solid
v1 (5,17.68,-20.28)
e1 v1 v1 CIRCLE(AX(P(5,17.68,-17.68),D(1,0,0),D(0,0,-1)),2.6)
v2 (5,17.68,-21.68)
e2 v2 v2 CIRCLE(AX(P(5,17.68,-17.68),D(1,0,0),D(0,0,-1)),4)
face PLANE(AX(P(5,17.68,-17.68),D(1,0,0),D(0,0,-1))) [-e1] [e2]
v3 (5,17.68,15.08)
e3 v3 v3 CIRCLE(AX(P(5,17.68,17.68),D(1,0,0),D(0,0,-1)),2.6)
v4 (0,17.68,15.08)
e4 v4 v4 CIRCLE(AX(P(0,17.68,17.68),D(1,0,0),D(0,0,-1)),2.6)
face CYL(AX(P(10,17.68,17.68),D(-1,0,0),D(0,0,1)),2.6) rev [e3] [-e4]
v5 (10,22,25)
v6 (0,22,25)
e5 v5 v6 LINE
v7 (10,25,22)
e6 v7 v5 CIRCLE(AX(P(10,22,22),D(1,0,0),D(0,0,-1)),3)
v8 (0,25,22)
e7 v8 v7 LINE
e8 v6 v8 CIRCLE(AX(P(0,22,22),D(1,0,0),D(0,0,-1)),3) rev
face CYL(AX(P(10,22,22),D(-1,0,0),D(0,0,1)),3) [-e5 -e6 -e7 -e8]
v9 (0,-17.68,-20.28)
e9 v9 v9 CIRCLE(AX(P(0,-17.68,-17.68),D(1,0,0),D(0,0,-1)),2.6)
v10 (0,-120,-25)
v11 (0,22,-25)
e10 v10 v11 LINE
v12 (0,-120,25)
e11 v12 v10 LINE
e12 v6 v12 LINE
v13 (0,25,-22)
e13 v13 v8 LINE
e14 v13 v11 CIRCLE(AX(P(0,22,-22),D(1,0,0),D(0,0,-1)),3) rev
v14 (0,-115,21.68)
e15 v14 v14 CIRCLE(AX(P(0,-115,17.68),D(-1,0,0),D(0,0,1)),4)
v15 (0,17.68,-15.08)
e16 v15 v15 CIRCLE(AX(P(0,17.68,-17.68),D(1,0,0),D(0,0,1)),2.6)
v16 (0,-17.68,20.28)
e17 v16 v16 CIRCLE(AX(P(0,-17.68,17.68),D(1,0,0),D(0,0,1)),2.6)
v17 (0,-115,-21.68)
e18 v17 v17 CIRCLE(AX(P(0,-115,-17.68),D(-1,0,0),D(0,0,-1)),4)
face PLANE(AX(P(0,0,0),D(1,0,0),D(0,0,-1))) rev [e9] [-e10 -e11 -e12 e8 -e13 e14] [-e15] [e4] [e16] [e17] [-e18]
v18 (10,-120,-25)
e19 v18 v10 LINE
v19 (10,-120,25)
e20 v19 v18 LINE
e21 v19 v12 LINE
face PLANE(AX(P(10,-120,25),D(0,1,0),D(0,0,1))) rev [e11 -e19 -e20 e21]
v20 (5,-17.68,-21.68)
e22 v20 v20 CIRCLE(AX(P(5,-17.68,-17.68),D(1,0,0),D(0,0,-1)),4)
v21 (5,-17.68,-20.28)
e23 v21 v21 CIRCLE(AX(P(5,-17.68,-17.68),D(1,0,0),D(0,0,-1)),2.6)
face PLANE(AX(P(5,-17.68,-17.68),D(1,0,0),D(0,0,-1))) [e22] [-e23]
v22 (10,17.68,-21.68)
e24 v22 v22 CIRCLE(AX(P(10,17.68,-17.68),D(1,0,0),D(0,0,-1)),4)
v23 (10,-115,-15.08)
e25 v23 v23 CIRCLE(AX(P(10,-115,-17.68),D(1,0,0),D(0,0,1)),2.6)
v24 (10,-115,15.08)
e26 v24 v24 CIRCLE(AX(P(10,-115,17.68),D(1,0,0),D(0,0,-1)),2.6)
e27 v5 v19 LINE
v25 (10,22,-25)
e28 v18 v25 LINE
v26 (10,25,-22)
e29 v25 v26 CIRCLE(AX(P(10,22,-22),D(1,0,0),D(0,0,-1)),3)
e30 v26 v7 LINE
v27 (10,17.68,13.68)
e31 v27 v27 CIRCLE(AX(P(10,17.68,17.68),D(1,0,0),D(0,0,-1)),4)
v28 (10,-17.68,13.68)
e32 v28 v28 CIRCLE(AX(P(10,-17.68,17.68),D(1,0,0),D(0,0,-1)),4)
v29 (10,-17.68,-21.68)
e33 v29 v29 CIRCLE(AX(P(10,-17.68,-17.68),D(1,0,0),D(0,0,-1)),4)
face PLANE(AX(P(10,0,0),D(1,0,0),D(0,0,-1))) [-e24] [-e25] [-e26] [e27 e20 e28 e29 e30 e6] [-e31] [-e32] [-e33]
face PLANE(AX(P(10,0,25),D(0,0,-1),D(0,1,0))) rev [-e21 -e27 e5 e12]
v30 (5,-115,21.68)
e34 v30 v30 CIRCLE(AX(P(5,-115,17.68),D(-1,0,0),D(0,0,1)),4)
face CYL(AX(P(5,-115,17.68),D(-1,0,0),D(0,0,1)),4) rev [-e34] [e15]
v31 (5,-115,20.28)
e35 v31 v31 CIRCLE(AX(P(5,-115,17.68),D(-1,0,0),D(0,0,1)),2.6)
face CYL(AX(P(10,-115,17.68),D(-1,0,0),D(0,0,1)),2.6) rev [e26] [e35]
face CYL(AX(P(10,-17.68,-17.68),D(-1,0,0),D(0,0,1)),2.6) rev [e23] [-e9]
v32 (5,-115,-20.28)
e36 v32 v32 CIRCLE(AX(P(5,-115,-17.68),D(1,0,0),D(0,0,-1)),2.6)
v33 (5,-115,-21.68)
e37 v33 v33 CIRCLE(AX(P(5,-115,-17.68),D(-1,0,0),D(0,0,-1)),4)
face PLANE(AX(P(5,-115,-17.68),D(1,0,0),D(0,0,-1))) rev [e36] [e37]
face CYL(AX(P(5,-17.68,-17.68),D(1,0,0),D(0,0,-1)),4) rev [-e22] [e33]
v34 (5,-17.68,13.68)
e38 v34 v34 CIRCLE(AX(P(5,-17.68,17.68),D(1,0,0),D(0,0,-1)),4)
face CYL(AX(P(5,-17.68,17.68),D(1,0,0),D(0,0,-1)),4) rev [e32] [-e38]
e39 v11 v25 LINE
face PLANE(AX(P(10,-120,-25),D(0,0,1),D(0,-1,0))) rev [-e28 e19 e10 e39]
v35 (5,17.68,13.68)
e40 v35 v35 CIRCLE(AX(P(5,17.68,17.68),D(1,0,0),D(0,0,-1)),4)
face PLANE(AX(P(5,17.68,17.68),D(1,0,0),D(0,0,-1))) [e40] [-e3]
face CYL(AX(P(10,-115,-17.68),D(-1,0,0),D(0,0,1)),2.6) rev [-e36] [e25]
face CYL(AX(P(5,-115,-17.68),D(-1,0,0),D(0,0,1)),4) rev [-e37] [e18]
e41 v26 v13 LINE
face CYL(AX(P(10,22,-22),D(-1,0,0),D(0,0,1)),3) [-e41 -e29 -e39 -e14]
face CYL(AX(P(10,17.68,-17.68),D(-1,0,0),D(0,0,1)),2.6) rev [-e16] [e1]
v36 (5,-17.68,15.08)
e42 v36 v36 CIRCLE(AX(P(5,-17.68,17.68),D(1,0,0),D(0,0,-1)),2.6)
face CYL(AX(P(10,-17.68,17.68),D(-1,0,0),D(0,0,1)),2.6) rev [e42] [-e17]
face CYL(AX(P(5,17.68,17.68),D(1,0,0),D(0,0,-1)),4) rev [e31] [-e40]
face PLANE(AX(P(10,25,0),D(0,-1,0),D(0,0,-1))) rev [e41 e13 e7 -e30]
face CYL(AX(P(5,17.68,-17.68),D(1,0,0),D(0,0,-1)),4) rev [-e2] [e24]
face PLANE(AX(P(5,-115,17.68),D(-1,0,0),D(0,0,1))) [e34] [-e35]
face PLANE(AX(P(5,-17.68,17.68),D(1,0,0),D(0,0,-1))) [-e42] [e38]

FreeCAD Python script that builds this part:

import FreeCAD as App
import Part
import Sketcher


def edges_at(feature, points):
    """Names of the edges that pass closest to the given points."""
    edges = feature.Shape.Edges
    near = lambda p: min(range(len(edges)), key=lambda i: edges[i].distToShape(Part.Vertex(*p))[0])
    return sorted({f"Edge{near(p) + 1}" for p in points})

doc = App.newDocument("Part")
body = doc.addObject("PartDesign::Body", "Body")

sketch1 = body.newObject("Sketcher::SketchObject", "Sketch")
sketch1.AttachmentSupport = (doc.getObject("YZ_Plane"), [""])
sketch1.MapMode = "FlatFace"
sketch1.addGeometry([
    Part.LineSegment(App.Vector(-120, 25, 0), App.Vector(-120, -25, 0)),
    Part.LineSegment(App.Vector(-120, -25, 0), App.Vector(25, -25, 0)),
    Part.LineSegment(App.Vector(25, -25, 0), App.Vector(25, 25, 0)),
    Part.LineSegment(App.Vector(25, 25, 0), App.Vector(-120, 25, 0)),
    Part.Circle(App.Vector(-115, 17.7, 0), App.Vector(0, 0, 1), 2.6),
    Part.Circle(App.Vector(-115, -17.7, 0), App.Vector(0, 0, 1), 2.6),
    Part.Circle(App.Vector(-17.7, 17.7, 0), App.Vector(0, 0, 1), 2.6),
    Part.Circle(App.Vector(17.7, 17.7, 0), App.Vector(0, 0, 1), 2.6),
    Part.Circle(App.Vector(-17.7, -17.7, 0), App.Vector(0, 0, 1), 2.6),
    Part.Circle(App.Vector(17.7, -17.7, 0), App.Vector(0, 0, 1), 2.6),
], False)
sketch1.addConstraint([
    Sketcher.Constraint("Coincident", 0, 2, 1, 1),
    Sketcher.Constraint("Coincident", 1, 2, 2, 1),
    Sketcher.Constraint("Coincident", 2, 2, 3, 1),
    Sketcher.Constraint("Coincident", 3, 2, 0, 1),
    Sketcher.Constraint("Vertical", 0),
    Sketcher.Constraint("Horizontal", 1),
    Sketcher.Constraint("Vertical", 2),
    Sketcher.Constraint("Horizontal", 3),
    Sketcher.Constraint("Equal", 4, 5),
    Sketcher.Constraint("Equal", 5, 6),
    Sketcher.Constraint("Equal", 6, 7),
    Sketcher.Constraint("Equal", 7, 8),
    Sketcher.Constraint("Equal", 8, 9),
    Sketcher.Constraint("Symmetric", 7, 3, 8, 3, -1, 1),
    Sketcher.Constraint("Symmetric", 6, 3, 9, 3, -1, 1),
    Sketcher.Constraint("Symmetric", 6, 3, 7, 3, -2),
    Sketcher.Constraint("Symmetric", 4, 3, 5, 3, -1),
    Sketcher.Constraint("Horizontal", 4, 3, 6, 3),
    Sketcher.Constraint("Diameter", 4, 5.2),
    Sketcher.Constraint("DistanceX", 1, 1, 1, 2, 145.0),
    Sketcher.Constraint("DistanceY", 0, 2, 0, 1, 50.0),
    Sketcher.Constraint("DistanceX", 4, 3, -1, 1, 115.0),
    Sketcher.Constraint("DistanceX", 0, 2, -1, 1, 120.0),
    Sketcher.Constraint("DistanceY", 0, 2, -1, 1, 25.0),
    Sketcher.Constraint("DistanceY", -1, 1, 4, 3, 17.68),
    Sketcher.Constraint("DistanceX", 6, 3, -1, 1, 17.68),
])
pad1 = body.newObject("PartDesign::Pad", "Pad")
pad1.Profile = sketch1
pad1.Length = 10

sketch2 = body.newObject("Sketcher::SketchObject", "Sketch001")
sketch2.AttachmentSupport = (doc.getObject("YZ_Plane"), [""])
sketch2.MapMode = "FlatFace"
sketch2.AttachmentOffset = App.Placement(App.Vector(0, 0, 10), App.Rotation())
sketch2.addGeometry([
    Part.Circle(App.Vector(17.7, -17.7, 0), App.Vector(0, 0, 1), 4),
    Part.Circle(App.Vector(17.7, 17.7, 0), App.Vector(0, 0, 1), 4),
    Part.Circle(App.Vector(-17.7, 17.7, 0), App.Vector(0, 0, 1), 4),
    Part.Circle(App.Vector(-17.7, -17.7, 0), App.Vector(0, 0, 1), 4),
], False)
sketch2.addConstraint([
    Sketcher.Constraint("Equal", 0, 1),
    Sketcher.Constraint("Equal", 1, 2),
    Sketcher.Constraint("Equal", 2, 3),
    Sketcher.Constraint("Symmetric", 0, 3, 2, 3, -1, 1),
    Sketcher.Constraint("Symmetric", 1, 3, 3, 3, -1, 1),
    Sketcher.Constraint("Symmetric", 1, 3, 2, 3, -2),
    Sketcher.Constraint("Diameter", 0, 8.0),
    Sketcher.Constraint("DistanceX", -1, 1, 0, 3, 17.68),
    Sketcher.Constraint("DistanceY", 0, 3, -1, 1, 17.68),
])
pocket1 = body.newObject("PartDesign::Pocket", "Pocket")
pocket1.Profile = sketch2
pocket1.Length = 5
doc.recompute()

fillet = body.newObject("PartDesign::Fillet", "Fillet")
fillet.Base = (pocket1, edges_at(pocket1, [(5, 25, -25), (5, 25, 25)]))
fillet.Radius = 3

sketch3 = body.newObject("Sketcher::SketchObject", "Sketch002")
sketch3.AttachmentSupport = (doc.getObject("YZ_Plane"), [""])
sketch3.MapMode = "FlatFace"
sketch3.addGeometry([
    Part.Circle(App.Vector(-115, 17.7, 0), App.Vector(0, 0, 1), 4),
    Part.Circle(App.Vector(-115, -17.7, 0), App.Vector(0, 0, 1), 4),
], False)
sketch3.addConstraint([
    Sketcher.Constraint("Equal", 0, 1),
    Sketcher.Constraint("Symmetric", 0, 3, 1, 3, -1),
    Sketcher.Constraint("Diameter", 0, 8.0),
    Sketcher.Constraint("DistanceX", 0, 3, -1, 1, 115.0),
    Sketcher.Constraint("DistanceY", -1, 1, 0, 3, 17.68),
])
pocket2 = body.newObject("PartDesign::Pocket", "Pocket001")
pocket2.Profile = sketch3
pocket2.Length = 5
pocket2.Reversed = True

doc.recompute()
